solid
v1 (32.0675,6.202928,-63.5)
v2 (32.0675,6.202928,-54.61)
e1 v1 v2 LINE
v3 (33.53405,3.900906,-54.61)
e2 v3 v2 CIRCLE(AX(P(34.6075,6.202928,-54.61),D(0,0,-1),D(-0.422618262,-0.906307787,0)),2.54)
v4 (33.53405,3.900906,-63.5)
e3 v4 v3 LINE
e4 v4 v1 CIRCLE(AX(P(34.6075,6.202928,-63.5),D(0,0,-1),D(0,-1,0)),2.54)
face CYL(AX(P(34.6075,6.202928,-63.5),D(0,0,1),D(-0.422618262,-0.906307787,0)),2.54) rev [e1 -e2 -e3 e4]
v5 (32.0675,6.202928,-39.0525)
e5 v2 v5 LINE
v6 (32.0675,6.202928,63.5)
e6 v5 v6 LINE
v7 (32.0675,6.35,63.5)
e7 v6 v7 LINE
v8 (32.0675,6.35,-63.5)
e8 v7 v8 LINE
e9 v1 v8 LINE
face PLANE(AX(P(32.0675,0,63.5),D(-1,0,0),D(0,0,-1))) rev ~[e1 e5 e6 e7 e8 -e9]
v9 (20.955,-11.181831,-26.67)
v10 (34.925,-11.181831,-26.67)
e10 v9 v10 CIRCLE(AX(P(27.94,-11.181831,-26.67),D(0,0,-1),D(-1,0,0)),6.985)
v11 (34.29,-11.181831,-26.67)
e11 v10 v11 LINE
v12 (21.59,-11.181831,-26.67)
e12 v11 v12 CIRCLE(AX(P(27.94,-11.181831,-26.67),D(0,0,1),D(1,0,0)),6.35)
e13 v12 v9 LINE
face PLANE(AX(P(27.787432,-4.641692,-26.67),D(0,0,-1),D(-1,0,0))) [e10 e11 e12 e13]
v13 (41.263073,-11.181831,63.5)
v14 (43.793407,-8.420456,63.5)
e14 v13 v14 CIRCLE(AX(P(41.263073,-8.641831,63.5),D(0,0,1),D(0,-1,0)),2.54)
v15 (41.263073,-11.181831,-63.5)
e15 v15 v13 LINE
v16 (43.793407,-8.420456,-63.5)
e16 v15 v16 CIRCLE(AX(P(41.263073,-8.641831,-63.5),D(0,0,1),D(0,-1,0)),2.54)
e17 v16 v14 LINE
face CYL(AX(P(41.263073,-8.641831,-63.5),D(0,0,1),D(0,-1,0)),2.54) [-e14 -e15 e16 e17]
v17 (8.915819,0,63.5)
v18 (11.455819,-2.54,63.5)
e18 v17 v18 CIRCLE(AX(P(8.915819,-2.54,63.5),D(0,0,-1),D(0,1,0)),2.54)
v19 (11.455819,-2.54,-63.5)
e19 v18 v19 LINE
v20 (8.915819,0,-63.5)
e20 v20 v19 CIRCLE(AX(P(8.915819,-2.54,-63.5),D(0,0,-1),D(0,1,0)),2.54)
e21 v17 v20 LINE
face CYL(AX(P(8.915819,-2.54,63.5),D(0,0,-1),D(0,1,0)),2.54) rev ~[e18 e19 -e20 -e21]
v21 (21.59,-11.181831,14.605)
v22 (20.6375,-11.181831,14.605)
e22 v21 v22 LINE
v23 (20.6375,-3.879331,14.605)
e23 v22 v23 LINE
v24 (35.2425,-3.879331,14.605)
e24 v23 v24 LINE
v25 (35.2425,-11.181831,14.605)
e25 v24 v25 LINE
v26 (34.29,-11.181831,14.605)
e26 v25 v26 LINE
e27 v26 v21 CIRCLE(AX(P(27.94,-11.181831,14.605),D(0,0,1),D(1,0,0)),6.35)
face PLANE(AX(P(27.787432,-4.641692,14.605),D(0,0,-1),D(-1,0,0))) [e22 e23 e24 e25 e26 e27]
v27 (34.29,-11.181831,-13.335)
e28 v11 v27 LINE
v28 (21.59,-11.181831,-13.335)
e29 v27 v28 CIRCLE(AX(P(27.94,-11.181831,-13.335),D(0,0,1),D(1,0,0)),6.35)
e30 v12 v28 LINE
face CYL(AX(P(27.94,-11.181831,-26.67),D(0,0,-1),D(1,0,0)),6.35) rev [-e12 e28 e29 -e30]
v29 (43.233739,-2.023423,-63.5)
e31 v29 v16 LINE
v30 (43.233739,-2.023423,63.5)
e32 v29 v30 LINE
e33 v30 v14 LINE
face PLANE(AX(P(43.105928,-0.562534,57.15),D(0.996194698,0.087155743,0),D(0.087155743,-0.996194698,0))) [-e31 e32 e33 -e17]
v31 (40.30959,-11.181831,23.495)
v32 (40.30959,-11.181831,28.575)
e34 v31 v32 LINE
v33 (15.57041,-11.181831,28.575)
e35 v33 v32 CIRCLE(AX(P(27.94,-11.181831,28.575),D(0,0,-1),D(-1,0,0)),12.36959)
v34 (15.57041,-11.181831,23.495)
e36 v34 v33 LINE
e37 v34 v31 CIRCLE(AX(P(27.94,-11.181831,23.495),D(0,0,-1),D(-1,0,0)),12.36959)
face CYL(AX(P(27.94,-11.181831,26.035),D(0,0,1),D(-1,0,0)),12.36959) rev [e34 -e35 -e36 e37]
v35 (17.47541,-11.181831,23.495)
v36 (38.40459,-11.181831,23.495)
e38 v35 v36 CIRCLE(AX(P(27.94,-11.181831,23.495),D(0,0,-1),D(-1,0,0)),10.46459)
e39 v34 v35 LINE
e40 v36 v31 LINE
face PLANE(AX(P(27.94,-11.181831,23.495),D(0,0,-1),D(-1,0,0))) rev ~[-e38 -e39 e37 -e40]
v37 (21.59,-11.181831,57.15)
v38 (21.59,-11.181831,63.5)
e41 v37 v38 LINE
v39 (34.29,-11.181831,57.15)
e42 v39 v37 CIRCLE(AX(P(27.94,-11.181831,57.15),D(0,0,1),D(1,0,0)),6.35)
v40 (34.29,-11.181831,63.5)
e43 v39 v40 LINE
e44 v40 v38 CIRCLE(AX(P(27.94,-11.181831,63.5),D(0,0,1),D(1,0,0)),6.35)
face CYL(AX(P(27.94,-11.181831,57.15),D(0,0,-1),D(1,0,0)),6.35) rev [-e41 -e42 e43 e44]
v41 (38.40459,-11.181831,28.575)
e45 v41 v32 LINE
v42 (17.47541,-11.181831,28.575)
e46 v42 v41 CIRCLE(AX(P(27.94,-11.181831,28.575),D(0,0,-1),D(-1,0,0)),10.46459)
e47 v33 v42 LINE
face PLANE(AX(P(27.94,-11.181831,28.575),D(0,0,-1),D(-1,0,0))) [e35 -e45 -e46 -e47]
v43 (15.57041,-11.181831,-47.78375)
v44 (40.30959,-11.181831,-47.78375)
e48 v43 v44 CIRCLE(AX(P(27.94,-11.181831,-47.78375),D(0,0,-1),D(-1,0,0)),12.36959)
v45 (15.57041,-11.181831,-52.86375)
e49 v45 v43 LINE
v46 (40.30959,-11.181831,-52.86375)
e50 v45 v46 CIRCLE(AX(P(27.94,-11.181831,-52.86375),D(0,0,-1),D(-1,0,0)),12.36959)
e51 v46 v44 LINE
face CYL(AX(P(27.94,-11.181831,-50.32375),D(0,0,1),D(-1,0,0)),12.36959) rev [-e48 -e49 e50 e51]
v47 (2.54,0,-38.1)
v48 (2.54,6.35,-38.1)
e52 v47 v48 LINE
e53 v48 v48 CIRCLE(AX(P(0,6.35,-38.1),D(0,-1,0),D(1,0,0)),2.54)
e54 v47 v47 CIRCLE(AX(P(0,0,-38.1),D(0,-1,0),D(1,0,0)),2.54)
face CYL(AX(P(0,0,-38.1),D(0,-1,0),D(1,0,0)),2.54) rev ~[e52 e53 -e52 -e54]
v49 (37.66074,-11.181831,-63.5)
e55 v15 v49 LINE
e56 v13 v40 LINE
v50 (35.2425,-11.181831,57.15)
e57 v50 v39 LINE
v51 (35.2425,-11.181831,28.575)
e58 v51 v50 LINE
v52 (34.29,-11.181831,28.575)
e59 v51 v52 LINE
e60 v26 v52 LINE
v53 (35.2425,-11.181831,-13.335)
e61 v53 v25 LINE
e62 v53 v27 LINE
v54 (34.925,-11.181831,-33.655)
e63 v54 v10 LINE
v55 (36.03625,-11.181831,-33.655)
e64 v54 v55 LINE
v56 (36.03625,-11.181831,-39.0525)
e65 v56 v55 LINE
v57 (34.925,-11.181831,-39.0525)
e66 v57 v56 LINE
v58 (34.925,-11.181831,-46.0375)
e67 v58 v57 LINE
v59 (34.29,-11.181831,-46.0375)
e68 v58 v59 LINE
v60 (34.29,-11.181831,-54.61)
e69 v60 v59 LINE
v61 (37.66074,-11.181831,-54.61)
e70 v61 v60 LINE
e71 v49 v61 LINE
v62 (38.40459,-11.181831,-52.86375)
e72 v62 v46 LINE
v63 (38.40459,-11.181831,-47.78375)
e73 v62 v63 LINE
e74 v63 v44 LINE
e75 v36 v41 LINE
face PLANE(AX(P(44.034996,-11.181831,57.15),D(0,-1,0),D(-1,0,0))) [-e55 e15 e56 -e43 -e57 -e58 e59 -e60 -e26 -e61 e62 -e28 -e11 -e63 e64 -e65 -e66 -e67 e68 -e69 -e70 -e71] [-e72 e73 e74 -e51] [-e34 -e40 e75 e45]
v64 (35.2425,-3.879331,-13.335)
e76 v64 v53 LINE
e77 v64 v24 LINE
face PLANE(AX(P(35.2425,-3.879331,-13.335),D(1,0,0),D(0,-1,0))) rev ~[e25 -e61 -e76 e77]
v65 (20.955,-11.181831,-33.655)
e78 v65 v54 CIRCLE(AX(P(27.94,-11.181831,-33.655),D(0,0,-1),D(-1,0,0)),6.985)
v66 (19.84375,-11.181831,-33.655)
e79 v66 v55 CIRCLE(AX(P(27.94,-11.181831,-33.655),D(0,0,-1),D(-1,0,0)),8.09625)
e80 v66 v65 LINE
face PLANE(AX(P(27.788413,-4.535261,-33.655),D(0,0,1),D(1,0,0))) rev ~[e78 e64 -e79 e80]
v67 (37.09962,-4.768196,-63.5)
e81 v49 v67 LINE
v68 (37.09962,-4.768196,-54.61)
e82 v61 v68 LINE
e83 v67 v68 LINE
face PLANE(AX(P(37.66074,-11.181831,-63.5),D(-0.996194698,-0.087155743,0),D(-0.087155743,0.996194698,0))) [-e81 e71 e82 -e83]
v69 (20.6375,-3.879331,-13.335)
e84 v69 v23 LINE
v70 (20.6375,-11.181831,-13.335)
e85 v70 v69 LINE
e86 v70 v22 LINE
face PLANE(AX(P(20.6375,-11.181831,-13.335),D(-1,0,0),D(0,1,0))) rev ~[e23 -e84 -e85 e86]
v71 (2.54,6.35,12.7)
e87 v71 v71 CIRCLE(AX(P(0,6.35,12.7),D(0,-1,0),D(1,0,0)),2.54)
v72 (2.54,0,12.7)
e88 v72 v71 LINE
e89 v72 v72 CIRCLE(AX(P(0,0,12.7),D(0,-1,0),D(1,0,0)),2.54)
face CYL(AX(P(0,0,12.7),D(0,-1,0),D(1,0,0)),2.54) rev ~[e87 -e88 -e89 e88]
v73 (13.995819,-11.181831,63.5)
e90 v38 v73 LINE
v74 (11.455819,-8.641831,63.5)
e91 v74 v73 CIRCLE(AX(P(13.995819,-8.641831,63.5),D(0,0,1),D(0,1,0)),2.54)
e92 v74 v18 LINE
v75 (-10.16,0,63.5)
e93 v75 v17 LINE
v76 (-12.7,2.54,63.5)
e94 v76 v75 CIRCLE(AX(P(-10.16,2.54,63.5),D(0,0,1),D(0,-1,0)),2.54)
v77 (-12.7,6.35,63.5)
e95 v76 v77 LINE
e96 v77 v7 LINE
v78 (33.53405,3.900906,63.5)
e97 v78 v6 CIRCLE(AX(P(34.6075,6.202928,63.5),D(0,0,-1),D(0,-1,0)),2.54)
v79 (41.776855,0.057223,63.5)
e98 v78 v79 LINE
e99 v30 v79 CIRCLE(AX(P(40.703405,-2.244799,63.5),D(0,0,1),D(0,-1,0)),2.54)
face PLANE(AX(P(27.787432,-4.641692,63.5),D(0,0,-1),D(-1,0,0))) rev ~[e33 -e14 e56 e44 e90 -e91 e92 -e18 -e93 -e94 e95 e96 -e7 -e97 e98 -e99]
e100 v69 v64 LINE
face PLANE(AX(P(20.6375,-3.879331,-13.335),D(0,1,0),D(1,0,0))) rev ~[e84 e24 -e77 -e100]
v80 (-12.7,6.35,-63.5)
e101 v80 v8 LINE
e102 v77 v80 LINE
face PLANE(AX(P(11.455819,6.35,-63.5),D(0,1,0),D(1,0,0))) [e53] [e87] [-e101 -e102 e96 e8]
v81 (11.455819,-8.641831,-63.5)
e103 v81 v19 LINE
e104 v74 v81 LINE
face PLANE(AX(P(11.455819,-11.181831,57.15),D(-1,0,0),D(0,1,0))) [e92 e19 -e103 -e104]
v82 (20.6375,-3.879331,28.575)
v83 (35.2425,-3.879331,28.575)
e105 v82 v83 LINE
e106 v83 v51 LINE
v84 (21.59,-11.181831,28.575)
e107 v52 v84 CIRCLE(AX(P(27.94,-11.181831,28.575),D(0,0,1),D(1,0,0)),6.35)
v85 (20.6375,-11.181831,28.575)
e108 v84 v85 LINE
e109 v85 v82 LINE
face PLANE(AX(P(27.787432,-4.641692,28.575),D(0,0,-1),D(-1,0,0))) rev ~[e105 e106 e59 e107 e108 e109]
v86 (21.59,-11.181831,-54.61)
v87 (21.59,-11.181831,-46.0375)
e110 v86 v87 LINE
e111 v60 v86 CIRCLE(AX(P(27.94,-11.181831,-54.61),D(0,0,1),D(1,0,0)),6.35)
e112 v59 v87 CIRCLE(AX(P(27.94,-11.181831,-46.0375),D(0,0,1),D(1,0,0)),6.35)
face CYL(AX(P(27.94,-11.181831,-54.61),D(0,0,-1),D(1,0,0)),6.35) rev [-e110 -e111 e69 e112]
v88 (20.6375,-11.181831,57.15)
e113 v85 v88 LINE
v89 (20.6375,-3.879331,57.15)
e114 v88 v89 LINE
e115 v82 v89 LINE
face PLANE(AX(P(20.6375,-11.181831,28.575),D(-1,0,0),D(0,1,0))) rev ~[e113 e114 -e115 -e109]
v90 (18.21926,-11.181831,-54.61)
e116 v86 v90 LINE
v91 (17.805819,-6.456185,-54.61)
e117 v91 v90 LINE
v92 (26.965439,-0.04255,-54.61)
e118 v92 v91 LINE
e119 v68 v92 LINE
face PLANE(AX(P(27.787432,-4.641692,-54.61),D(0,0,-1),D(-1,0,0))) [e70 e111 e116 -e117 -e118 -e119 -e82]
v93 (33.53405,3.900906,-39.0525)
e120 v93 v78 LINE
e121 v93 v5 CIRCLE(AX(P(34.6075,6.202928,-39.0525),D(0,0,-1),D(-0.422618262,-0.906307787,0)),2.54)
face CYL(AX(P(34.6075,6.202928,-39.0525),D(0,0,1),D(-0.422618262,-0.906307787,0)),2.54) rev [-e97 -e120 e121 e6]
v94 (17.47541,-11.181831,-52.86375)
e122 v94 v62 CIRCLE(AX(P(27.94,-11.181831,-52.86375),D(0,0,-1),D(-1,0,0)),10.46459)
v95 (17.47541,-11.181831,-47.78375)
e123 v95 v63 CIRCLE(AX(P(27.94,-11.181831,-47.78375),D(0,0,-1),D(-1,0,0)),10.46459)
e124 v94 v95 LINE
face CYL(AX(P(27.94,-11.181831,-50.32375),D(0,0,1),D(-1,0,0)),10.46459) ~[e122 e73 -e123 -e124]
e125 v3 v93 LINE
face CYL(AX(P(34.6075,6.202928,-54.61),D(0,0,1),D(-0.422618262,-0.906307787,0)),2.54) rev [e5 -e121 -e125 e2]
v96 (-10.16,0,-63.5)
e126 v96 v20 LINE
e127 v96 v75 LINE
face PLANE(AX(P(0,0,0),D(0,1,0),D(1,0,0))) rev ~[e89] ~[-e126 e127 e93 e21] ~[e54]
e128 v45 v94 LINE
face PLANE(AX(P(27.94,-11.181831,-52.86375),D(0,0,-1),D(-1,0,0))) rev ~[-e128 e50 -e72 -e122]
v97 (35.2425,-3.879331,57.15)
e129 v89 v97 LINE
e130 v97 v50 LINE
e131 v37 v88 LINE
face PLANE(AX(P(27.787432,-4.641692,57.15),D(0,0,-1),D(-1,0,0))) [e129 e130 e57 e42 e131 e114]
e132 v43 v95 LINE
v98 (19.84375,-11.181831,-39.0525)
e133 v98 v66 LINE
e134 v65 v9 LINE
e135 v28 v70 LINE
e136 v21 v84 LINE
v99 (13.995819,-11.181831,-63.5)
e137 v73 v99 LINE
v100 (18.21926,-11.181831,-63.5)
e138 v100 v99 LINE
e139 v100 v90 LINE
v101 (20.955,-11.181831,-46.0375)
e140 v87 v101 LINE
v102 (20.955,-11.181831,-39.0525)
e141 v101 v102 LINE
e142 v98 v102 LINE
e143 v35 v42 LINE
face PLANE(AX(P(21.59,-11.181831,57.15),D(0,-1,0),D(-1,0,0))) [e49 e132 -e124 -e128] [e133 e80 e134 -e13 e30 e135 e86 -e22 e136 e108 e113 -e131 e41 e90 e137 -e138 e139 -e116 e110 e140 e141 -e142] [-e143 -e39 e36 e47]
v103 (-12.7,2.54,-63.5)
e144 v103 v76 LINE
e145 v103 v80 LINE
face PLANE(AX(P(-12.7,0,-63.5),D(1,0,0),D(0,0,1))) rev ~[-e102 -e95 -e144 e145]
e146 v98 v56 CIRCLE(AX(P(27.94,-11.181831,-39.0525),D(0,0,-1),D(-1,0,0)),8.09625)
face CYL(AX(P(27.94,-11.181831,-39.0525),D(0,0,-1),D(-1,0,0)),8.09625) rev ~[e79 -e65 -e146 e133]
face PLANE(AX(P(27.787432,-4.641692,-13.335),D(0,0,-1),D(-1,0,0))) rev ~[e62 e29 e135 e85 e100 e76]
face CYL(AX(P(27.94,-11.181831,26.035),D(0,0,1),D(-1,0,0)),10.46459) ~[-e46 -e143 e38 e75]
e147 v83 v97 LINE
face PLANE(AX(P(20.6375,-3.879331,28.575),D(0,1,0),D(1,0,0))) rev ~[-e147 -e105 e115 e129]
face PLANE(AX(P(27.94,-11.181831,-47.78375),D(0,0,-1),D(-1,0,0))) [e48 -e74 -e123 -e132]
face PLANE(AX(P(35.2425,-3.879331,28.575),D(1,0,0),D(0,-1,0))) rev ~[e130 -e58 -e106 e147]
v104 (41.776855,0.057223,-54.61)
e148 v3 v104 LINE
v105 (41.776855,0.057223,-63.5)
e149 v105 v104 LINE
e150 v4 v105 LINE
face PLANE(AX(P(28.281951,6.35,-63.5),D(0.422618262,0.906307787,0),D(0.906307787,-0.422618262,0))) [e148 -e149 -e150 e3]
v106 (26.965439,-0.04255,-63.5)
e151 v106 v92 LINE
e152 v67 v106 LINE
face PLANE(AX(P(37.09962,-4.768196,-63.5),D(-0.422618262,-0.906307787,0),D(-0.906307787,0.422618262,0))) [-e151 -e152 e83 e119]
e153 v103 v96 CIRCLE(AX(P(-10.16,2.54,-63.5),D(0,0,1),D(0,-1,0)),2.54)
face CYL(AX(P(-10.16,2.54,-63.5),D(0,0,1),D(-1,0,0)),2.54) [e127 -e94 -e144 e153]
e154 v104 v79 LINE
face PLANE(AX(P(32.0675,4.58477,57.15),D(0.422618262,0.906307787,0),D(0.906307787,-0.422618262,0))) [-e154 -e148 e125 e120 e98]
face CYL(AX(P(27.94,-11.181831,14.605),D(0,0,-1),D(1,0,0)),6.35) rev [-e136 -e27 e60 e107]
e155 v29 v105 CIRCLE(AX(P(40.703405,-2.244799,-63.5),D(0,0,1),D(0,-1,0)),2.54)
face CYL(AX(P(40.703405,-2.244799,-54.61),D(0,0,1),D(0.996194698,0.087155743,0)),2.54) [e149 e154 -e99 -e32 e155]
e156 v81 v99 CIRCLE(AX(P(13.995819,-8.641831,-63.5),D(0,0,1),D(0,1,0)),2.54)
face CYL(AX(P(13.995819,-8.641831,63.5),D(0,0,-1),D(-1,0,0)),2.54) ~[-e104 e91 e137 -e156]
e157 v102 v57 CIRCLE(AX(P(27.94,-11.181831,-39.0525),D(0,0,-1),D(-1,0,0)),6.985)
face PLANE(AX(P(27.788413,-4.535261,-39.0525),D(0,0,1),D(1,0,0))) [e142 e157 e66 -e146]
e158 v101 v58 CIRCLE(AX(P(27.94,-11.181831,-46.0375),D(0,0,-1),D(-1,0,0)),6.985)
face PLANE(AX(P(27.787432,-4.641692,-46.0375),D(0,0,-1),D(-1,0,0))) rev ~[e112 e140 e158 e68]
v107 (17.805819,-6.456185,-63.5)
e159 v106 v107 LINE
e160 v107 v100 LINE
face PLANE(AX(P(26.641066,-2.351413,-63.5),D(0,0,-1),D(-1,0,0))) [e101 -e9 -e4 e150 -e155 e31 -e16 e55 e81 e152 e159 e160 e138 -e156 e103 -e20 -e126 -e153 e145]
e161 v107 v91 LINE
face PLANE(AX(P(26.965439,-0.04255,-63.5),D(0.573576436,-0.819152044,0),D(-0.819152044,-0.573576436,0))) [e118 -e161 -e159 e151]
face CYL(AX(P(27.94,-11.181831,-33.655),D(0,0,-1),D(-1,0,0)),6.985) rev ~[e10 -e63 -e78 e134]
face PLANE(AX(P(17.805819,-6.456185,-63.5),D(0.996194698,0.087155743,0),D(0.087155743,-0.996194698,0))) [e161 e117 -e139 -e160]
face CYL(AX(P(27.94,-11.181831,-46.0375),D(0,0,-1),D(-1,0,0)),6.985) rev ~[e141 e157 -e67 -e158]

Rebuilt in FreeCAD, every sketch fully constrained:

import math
import FreeCAD as App
import Part
import Sketcher
from FreeCAD import Vector
Q = App.Units.Quantity


def edges_at(feature, points):
    """Names of the edges that pass closest to the given points."""
    edges = feature.Shape.Edges
    near = lambda p: min(range(len(edges)), key=lambda i: edges[i].distToShape(Part.Vertex(*p))[0])
    return sorted({f"Edge{near(p) + 1}" for p in points})


def add_polygon(sketch, points):
    """Adds a closed chain of lines whose ends are joined by coincident constraints."""
    first, n = sketch.GeometryCount, len(points)
    for a, b in zip(points, points[1:] + points[:1]):
        sketch.addGeometry(Part.LineSegment(App.Vector(*a, 0), App.Vector(*b, 0)), False)
    for i in range(n):
        sketch.addConstraint(Sketcher.Constraint("Coincident", first + i, 2, first + (i + 1) % n, 1))

doc = App.newDocument("Part")
body = doc.addObject("PartDesign::Body", "Body")

sketch1 = body.newObject("Sketcher::SketchObject", "Sketch")
sketch1.AttachmentSupport = (doc.getObject("XZ_Plane"), [""])
sketch1.MapMode = "FlatFace"
add_polygon(sketch1, [(-32, -64), (-32, 64), (32, 64), (32, -64)])
sketch1.addConstraint(Sketcher.Constraint("Vertical", 0))
sketch1.addConstraint(Sketcher.Constraint("Horizontal", 1))
sketch1.addConstraint(Sketcher.Constraint("Vertical", 2))
sketch1.addConstraint(Sketcher.Constraint("Horizontal", 3))
sketch1.addConstraint(Sketcher.Constraint("Symmetric", 0, 2, 2, 2, -1, 1))
sketch1.addConstraint(Sketcher.Constraint("DistanceY", 0, 1, 0, 2, Q("5 in")))
sketch1.addConstraint(Sketcher.Constraint("DistanceX", 1, 1, 1, 2, Q("2.525 in")))
pad1 = body.newObject("PartDesign::Pad", "Pad")
pad1.Profile = sketch1
pad1.Length = Q("0.25 in")
pad1.Reversed = True

sketch2 = body.newObject("Sketcher::SketchObject", "Sketch001")
sketch2.AttachmentSupport = (doc.getObject("XY_Plane"), [""])
sketch2.MapMode = "FlatFace"
sketch2.AttachmentOffset = App.Placement(Vector(0, 0, -2.5 * 25.4), App.Rotation())
add_polygon(sketch2, [(37.7, -11.2), (37.1, -4.8), (27, 0), (17.8, -6.5), (18.2, -11.2), (11.5, -11.2), (11.5, 6.3), (28.3, 6.3), (43.1, -0.6), (44, -11.2)])
sketch2.addConstraint(Sketcher.Constraint("Horizontal", 4))
sketch2.addConstraint(Sketcher.Constraint("Vertical", 5))
sketch2.addConstraint(Sketcher.Constraint("Horizontal", 6))
sketch2.addConstraint(Sketcher.Constraint("Horizontal", 9))
sketch2.addConstraint(Sketcher.Constraint("Parallel", 0, 3))
sketch2.addConstraint(Sketcher.Constraint("Parallel", 1, 7))
sketch2.addConstraint(Sketcher.Constraint("Parallel", 3, 8))
sketch2.addConstraint(Sketcher.Constraint("Horizontal", 4, 2, 8, 2))
sketch2.addConstraint(Sketcher.Constraint("Equal", 1, 2))
sketch2.addConstraint(Sketcher.Constraint("Angle", 0, Q("95 deg")))
sketch2.addConstraint(Sketcher.Constraint("Angle", 1, Q("155 deg")))
sketch2.addConstraint(Sketcher.Constraint("Angle", 2, Q("-145 deg")))
sketch2.addConstraint(Sketcher.Constraint("DistanceY", -1, 1, 5, 2, Q("0.25 in")))
sketch2.addConstraint(Sketcher.Constraint("DistanceX", 4, 2, 2, 2, Q("0.25 in")))
sketch2.addConstraint(Sketcher.Constraint("DistanceX", 4, 2, 4, 1, 6.76344))
sketch2.addConstraint(Sketcher.Constraint("DistanceX", 6, 1, 6, 2, 16.826132))
sketch2.addConstraint(Sketcher.Constraint("DistanceY", 5, 1, 5, 2, 17.531831))
sketch2.addConstraint(Sketcher.Constraint("DistanceX", 2, 2, 0, 2, 19.293801))
sketch2.addConstraint(Sketcher.Constraint("Distance", 7, 16.356449))
sketch2.addConstraint(Sketcher.Constraint("DistanceX", -1, 1, 0, 2, 37.09962))
pad2 = body.newObject("PartDesign::Pad", "Pad001")
pad2.Profile = sketch2
pad2.Length = Q("0.35 in")

sketch3 = body.newObject("Sketcher::SketchObject", "Sketch002")
sketch3.AttachmentSupport = (doc.getObject("XY_Plane"), [""])
sketch3.MapMode = "FlatFace"
sketch3.AttachmentOffset = App.Placement(Vector(0, 0, -2.15 * 25.4), App.Rotation())
sketch3.addGeometry(Part.LineSegment(Vector(34.3, -11.2, 0), Vector(44, -11.2, 0)), False)
sketch3.addGeometry(Part.LineSegment(Vector(44, -11.2, 0), Vector(43.1, -0.6, 0)), False)
sketch3.addGeometry(Part.LineSegment(Vector(43.1, -0.6, 0), Vector(32.1, 4.6, 0)), False)
sketch3.addGeometry(Part.LineSegment(Vector(32.1, 4.6, 0), Vector(32.1, 0, 0)), False)
sketch3.addGeometry(Part.LineSegment(Vector(32.1, 0, 0), Vector(11.5, 0, 0)), False)
sketch3.addGeometry(Part.LineSegment(Vector(11.5, 0, 0), Vector(11.5, -11.2, 0)), False)
sketch3.addGeometry(Part.LineSegment(Vector(11.5, -11.2, 0), Vector(21.6, -11.2, 0)), False)
sketch3.addGeometry(Part.ArcOfCircle(Part.Circle(Vector(27.9, -11.2, 0), Vector(0, 0, 1), 6.3), math.radians(0), math.radians(180)), False)
sketch3.addConstraint(Sketcher.Constraint("Coincident", 0, 2, 1, 1))
sketch3.addConstraint(Sketcher.Constraint("Coincident", 1, 2, 2, 1))
sketch3.addConstraint(Sketcher.Constraint("Coincident", 2, 2, 3, 1))
sketch3.addConstraint(Sketcher.Constraint("Coincident", 3, 2, 4, 1))
sketch3.addConstraint(Sketcher.Constraint("Coincident", 4, 2, 5, 1))
sketch3.addConstraint(Sketcher.Constraint("Coincident", 5, 2, 6, 1))
sketch3.addConstraint(Sketcher.Constraint("Coincident", 6, 2, 7, 2))
sketch3.addConstraint(Sketcher.Constraint("Coincident", 7, 1, 0, 1))
sketch3.addConstraint(Sketcher.Constraint("Horizontal", 0))
sketch3.addConstraint(Sketcher.Constraint("Vertical", 3))
sketch3.addConstraint(Sketcher.Constraint("Horizontal", 4))
sketch3.addConstraint(Sketcher.Constraint("Vertical", 5))
sketch3.addConstraint(Sketcher.Constraint("Horizontal", 6))
sketch3.addConstraint(Sketcher.Constraint("PointOnObject", 3, 2, -1))
sketch3.addConstraint(Sketcher.Constraint("Horizontal", 7, 3, 0, 2))
sketch3.addConstraint(Sketcher.Constraint("Horizontal", 0, 2, 5, 2))
sketch3.addConstraint(Sketcher.Constraint("Radius", 7, Q("0.25 in")))
sketch3.addConstraint(Sketcher.Constraint("Angle", 1, Q("95 deg")))
sketch3.addConstraint(Sketcher.Constraint("Angle", 2, Q("155 deg")))
sketch3.addConstraint(Sketcher.Constraint("DistanceX", -1, 1, 7, 3, Q("1.1 in")))
sketch3.addConstraint(Sketcher.Constraint("DistanceX", -1, 1, 2, 2, Q("1.2625 in")))
sketch3.addConstraint(Sketcher.Constraint("DistanceX", 4, 2, 4, 1, 20.611681))
sketch3.addConstraint(Sketcher.Constraint("DistanceY", 3, 2, 3, 1, 4.58477))
sketch3.addConstraint(Sketcher.Constraint("DistanceY", 5, 2, 5, 1, 11.181831))
sketch3.addConstraint(Sketcher.Constraint("Distance", 1, 10.659861))
pad3 = body.newObject("PartDesign::Pad", "Pad002")
pad3.Profile = sketch3
pad3.Length = Q("0.3375 in")

sketch4 = body.newObject("Sketcher::SketchObject", "Sketch003")
sketch4.AttachmentSupport = (doc.getObject("XY_Plane"), [""])
sketch4.MapMode = "FlatFace"
sketch4.AttachmentOffset = App.Placement(Vector(0, 0, -1.8125 * 25.4), App.Rotation())
sketch4.addGeometry(Part.LineSegment(Vector(34.9, -11.2, 0), Vector(44, -11.2, 0)), False)
sketch4.addGeometry(Part.LineSegment(Vector(44, -11.2, 0), Vector(43.1, -0.6, 0)), False)
sketch4.addGeometry(Part.LineSegment(Vector(43.1, -0.6, 0), Vector(32.1, 4.6, 0)), False)
sketch4.addGeometry(Part.LineSegment(Vector(32.1, 4.6, 0), Vector(32.1, 0, 0)), False)
sketch4.addGeometry(Part.LineSegment(Vector(32.1, 0, 0), Vector(11.5, 0, 0)), False)
sketch4.addGeometry(Part.LineSegment(Vector(11.5, 0, 0), Vector(11.5, -11.2, 0)), False)
sketch4.addGeometry(Part.LineSegment(Vector(11.5, -11.2, 0), Vector(21, -11.2, 0)), False)
sketch4.addGeometry(Part.ArcOfCircle(Part.Circle(Vector(27.9, -11.2, 0), Vector(0, 0, 1), 7), math.radians(0), math.radians(180)), False)
sketch4.addConstraint(Sketcher.Constraint("Coincident", 0, 2, 1, 1))
sketch4.addConstraint(Sketcher.Constraint("Coincident", 1, 2, 2, 1))
sketch4.addConstraint(Sketcher.Constraint("Coincident", 2, 2, 3, 1))
sketch4.addConstraint(Sketcher.Constraint("Coincident", 3, 2, 4, 1))
sketch4.addConstraint(Sketcher.Constraint("Coincident", 4, 2, 5, 1))
sketch4.addConstraint(Sketcher.Constraint("Coincident", 5, 2, 6, 1))
sketch4.addConstraint(Sketcher.Constraint("Coincident", 6, 2, 7, 2))
sketch4.addConstraint(Sketcher.Constraint("Coincident", 7, 1, 0, 1))
sketch4.addConstraint(Sketcher.Constraint("Horizontal", 0))
sketch4.addConstraint(Sketcher.Constraint("Vertical", 3))
sketch4.addConstraint(Sketcher.Constraint("Horizontal", 4))
sketch4.addConstraint(Sketcher.Constraint("Vertical", 5))
sketch4.addConstraint(Sketcher.Constraint("Horizontal", 6))
sketch4.addConstraint(Sketcher.Constraint("PointOnObject", 3, 2, -1))
sketch4.addConstraint(Sketcher.Constraint("Horizontal", 7, 3, 0, 2))
sketch4.addConstraint(Sketcher.Constraint("Horizontal", 0, 2, 5, 2))
sketch4.addConstraint(Sketcher.Constraint("Angle", 1, Q("95 deg")))
sketch4.addConstraint(Sketcher.Constraint("Angle", 2, Q("155 deg")))
sketch4.addConstraint(Sketcher.Constraint("Radius", 7, Q("0.275 in")))
sketch4.addConstraint(Sketcher.Constraint("DistanceX", -1, 1, 7, 3, Q("1.1 in")))
sketch4.addConstraint(Sketcher.Constraint("DistanceX", 6, 2, 3, 2, Q("0.4375 in")))
sketch4.addConstraint(Sketcher.Constraint("DistanceX", 4, 2, 4, 1, 20.611681))
sketch4.addConstraint(Sketcher.Constraint("DistanceY", 3, 2, 3, 1, 4.58477))
sketch4.addConstraint(Sketcher.Constraint("DistanceY", 5, 2, 5, 1, 11.181831))
sketch4.addConstraint(Sketcher.Constraint("Distance", 1, 10.659861))
pad4 = body.newObject("PartDesign::Pad", "Pad003")
pad4.Profile = sketch4
pad4.Length = Q("0.275 in")

sketch5 = body.newObject("Sketcher::SketchObject", "Sketch004")
sketch5.AttachmentSupport = (doc.getObject("XY_Plane"), [""])
sketch5.MapMode = "FlatFace"
sketch5.AttachmentOffset = App.Placement(Vector(0, 0, -1.5375 * 25.4), App.Rotation())
sketch5.addGeometry(Part.LineSegment(Vector(36, -11.2, 0), Vector(44, -11.2, 0)), False)
sketch5.addGeometry(Part.LineSegment(Vector(44, -11.2, 0), Vector(43.1, -0.6, 0)), False)
sketch5.addGeometry(Part.LineSegment(Vector(43.1, -0.6, 0), Vector(32.1, 4.6, 0)), False)
sketch5.addGeometry(Part.LineSegment(Vector(32.1, 4.6, 0), Vector(32.1, 0, 0)), False)
sketch5.addGeometry(Part.LineSegment(Vector(32.1, 0, 0), Vector(11.5, 0, 0)), False)
sketch5.addGeometry(Part.LineSegment(Vector(11.5, 0, 0), Vector(11.5, -11.2, 0)), False)
sketch5.addGeometry(Part.LineSegment(Vector(11.5, -11.2, 0), Vector(19.8, -11.2, 0)), False)
sketch5.addGeometry(Part.ArcOfCircle(Part.Circle(Vector(27.9, -11.2, 0), Vector(0, 0, 1), 8.1), math.radians(0), math.radians(180)), False)
sketch5.addConstraint(Sketcher.Constraint("Coincident", 0, 2, 1, 1))
sketch5.addConstraint(Sketcher.Constraint("Coincident", 1, 2, 2, 1))
sketch5.addConstraint(Sketcher.Constraint("Coincident", 2, 2, 3, 1))
sketch5.addConstraint(Sketcher.Constraint("Coincident", 3, 2, 4, 1))
sketch5.addConstraint(Sketcher.Constraint("Coincident", 4, 2, 5, 1))
sketch5.addConstraint(Sketcher.Constraint("Coincident", 5, 2, 6, 1))
sketch5.addConstraint(Sketcher.Constraint("Coincident", 6, 2, 7, 2))
sketch5.addConstraint(Sketcher.Constraint("Coincident", 7, 1, 0, 1))
sketch5.addConstraint(Sketcher.Constraint("Horizontal", 0))
sketch5.addConstraint(Sketcher.Constraint("Vertical", 3))
sketch5.addConstraint(Sketcher.Constraint("Horizontal", 4))
sketch5.addConstraint(Sketcher.Constraint("Vertical", 5))
sketch5.addConstraint(Sketcher.Constraint("Horizontal", 6))
sketch5.addConstraint(Sketcher.Constraint("PointOnObject", 3, 2, -1))
sketch5.addConstraint(Sketcher.Constraint("Horizontal", 7, 3, 0, 2))
sketch5.addConstraint(Sketcher.Constraint("Horizontal", 0, 2, 5, 2))
sketch5.addConstraint(Sketcher.Constraint("Angle", 1, Q("95 deg")))
sketch5.addConstraint(Sketcher.Constraint("Angle", 2, Q("155 deg")))
sketch5.addConstraint(Sketcher.Constraint("DistanceX", -1, 1, 7, 3, Q("1.1 in")))
sketch5.addConstraint(Sketcher.Constraint("DistanceX", -1, 1, 6, 2, Q("0.78125 in")))
sketch5.addConstraint(Sketcher.Constraint("DistanceX", 3, 2, 7, 1, Q("0.15625 in")))
sketch5.addConstraint(Sketcher.Constraint("DistanceX", 4, 2, 4, 1, 20.611681))
sketch5.addConstraint(Sketcher.Constraint("DistanceY", 3, 2, 3, 1, 4.58477))
sketch5.addConstraint(Sketcher.Constraint("DistanceY", 5, 2, 5, 1, 11.181831))
sketch5.addConstraint(Sketcher.Constraint("Distance", 1, 10.659861))
pad5 = body.newObject("PartDesign::Pad", "Pad004")
pad5.Profile = sketch5
pad5.Length = Q("0.2125 in")

sketch6 = body.newObject("Sketcher::SketchObject", "Sketch005")
sketch6.AttachmentSupport = (doc.getObject("XY_Plane"), [""])
sketch6.MapMode = "FlatFace"
sketch6.AttachmentOffset = App.Placement(Vector(0, 0, -1.325 * 25.4), App.Rotation())
sketch6.addGeometry(Part.LineSegment(Vector(34.9, -11.2, 0), Vector(44, -11.2, 0)), False)
sketch6.addGeometry(Part.LineSegment(Vector(44, -11.2, 0), Vector(43.1, -0.6, 0)), False)
sketch6.addGeometry(Part.LineSegment(Vector(43.1, -0.6, 0), Vector(32.1, 4.6, 0)), False)
sketch6.addGeometry(Part.LineSegment(Vector(32.1, 4.6, 0), Vector(32.1, 0, 0)), False)
sketch6.addGeometry(Part.LineSegment(Vector(32.1, 0, 0), Vector(11.5, 0, 0)), False)
sketch6.addGeometry(Part.LineSegment(Vector(11.5, 0, 0), Vector(11.5, -11.2, 0)), False)
sketch6.addGeometry(Part.LineSegment(Vector(11.5, -11.2, 0), Vector(21, -11.2, 0)), False)
sketch6.addGeometry(Part.ArcOfCircle(Part.Circle(Vector(27.9, -11.2, 0), Vector(0, 0, 1), 7), math.radians(0), math.radians(180)), False)
sketch6.addConstraint(Sketcher.Constraint("Coincident", 0, 2, 1, 1))
sketch6.addConstraint(Sketcher.Constraint("Coincident", 1, 2, 2, 1))
sketch6.addConstraint(Sketcher.Constraint("Coincident", 2, 2, 3, 1))
sketch6.addConstraint(Sketcher.Constraint("Coincident", 3, 2, 4, 1))
sketch6.addConstraint(Sketcher.Constraint("Coincident", 4, 2, 5, 1))
sketch6.addConstraint(Sketcher.Constraint("Coincident", 5, 2, 6, 1))
sketch6.addConstraint(Sketcher.Constraint("Coincident", 6, 2, 7, 2))
sketch6.addConstraint(Sketcher.Constraint("Coincident", 7, 1, 0, 1))
sketch6.addConstraint(Sketcher.Constraint("Horizontal", 0))
sketch6.addConstraint(Sketcher.Constraint("Vertical", 3))
sketch6.addConstraint(Sketcher.Constraint("Horizontal", 4))
sketch6.addConstraint(Sketcher.Constraint("Vertical", 5))
sketch6.addConstraint(Sketcher.Constraint("Horizontal", 6))
sketch6.addConstraint(Sketcher.Constraint("PointOnObject", 3, 2, -1))
sketch6.addConstraint(Sketcher.Constraint("Horizontal", 7, 3, 0, 2))
sketch6.addConstraint(Sketcher.Constraint("Horizontal", 0, 2, 5, 2))
sketch6.addConstraint(Sketcher.Constraint("Angle", 1, Q("95 deg")))
sketch6.addConstraint(Sketcher.Constraint("Angle", 2, Q("155 deg")))
sketch6.addConstraint(Sketcher.Constraint("Radius", 7, Q("0.275 in")))
sketch6.addConstraint(Sketcher.Constraint("DistanceX", -1, 1, 7, 3, Q("1.1 in")))
sketch6.addConstraint(Sketcher.Constraint("DistanceX", 6, 2, 3, 2, Q("0.4375 in")))
sketch6.addConstraint(Sketcher.Constraint("DistanceX", 4, 2, 4, 1, 20.611681))
sketch6.addConstraint(Sketcher.Constraint("DistanceY", 3, 2, 3, 1, 4.58477))
sketch6.addConstraint(Sketcher.Constraint("DistanceY", 5, 2, 5, 1, 11.181831))
sketch6.addConstraint(Sketcher.Constraint("Distance", 1, 10.659861))
pad6 = body.newObject("PartDesign::Pad", "Pad005")
pad6.Profile = sketch6
pad6.Length = Q("0.275 in")

sketch7 = body.newObject("Sketcher::SketchObject", "Sketch006")
sketch7.AttachmentSupport = (doc.getObject("XY_Plane"), [""])
sketch7.MapMode = "FlatFace"
sketch7.AttachmentOffset = App.Placement(Vector(0, 0, -1.05 * 25.4), App.Rotation())
sketch7.addGeometry(Part.LineSegment(Vector(34.3, -11.2, 0), Vector(44, -11.2, 0)), False)
sketch7.addGeometry(Part.LineSegment(Vector(44, -11.2, 0), Vector(43.1, -0.6, 0)), False)
sketch7.addGeometry(Part.LineSegment(Vector(43.1, -0.6, 0), Vector(32.1, 4.6, 0)), False)
sketch7.addGeometry(Part.LineSegment(Vector(32.1, 4.6, 0), Vector(32.1, 0, 0)), False)
sketch7.addGeometry(Part.LineSegment(Vector(32.1, 0, 0), Vector(11.5, 0, 0)), False)
sketch7.addGeometry(Part.LineSegment(Vector(11.5, 0, 0), Vector(11.5, -11.2, 0)), False)
sketch7.addGeometry(Part.LineSegment(Vector(11.5, -11.2, 0), Vector(21.6, -11.2, 0)), False)
sketch7.addGeometry(Part.ArcOfCircle(Part.Circle(Vector(27.9, -11.2, 0), Vector(0, 0, 1), 6.3), math.radians(0), math.radians(180)), False)
sketch7.addConstraint(Sketcher.Constraint("Coincident", 0, 2, 1, 1))
sketch7.addConstraint(Sketcher.Constraint("Coincident", 1, 2, 2, 1))
sketch7.addConstraint(Sketcher.Constraint("Coincident", 2, 2, 3, 1))
sketch7.addConstraint(Sketcher.Constraint("Coincident", 3, 2, 4, 1))
sketch7.addConstraint(Sketcher.Constraint("Coincident", 4, 2, 5, 1))
sketch7.addConstraint(Sketcher.Constraint("Coincident", 5, 2, 6, 1))
sketch7.addConstraint(Sketcher.Constraint("Coincident", 6, 2, 7, 2))
sketch7.addConstraint(Sketcher.Constraint("Coincident", 7, 1, 0, 1))
sketch7.addConstraint(Sketcher.Constraint("Horizontal", 0))
sketch7.addConstraint(Sketcher.Constraint("Vertical", 3))
sketch7.addConstraint(Sketcher.Constraint("Horizontal", 4))
sketch7.addConstraint(Sketcher.Constraint("Vertical", 5))
sketch7.addConstraint(Sketcher.Constraint("Horizontal", 6))
sketch7.addConstraint(Sketcher.Constraint("PointOnObject", 3, 2, -1))
sketch7.addConstraint(Sketcher.Constraint("Horizontal", 7, 3, 0, 2))
sketch7.addConstraint(Sketcher.Constraint("Horizontal", 0, 2, 5, 2))
sketch7.addConstraint(Sketcher.Constraint("Radius", 7, Q("0.25 in")))
sketch7.addConstraint(Sketcher.Constraint("Angle", 1, Q("95 deg")))
sketch7.addConstraint(Sketcher.Constraint("Angle", 2, Q("155 deg")))
sketch7.addConstraint(Sketcher.Constraint("DistanceX", -1, 1, 7, 3, Q("1.1 in")))
sketch7.addConstraint(Sketcher.Constraint("DistanceX", -1, 1, 2, 2, Q("1.2625 in")))
sketch7.addConstraint(Sketcher.Constraint("DistanceX", 4, 2, 4, 1, 20.611681))
sketch7.addConstraint(Sketcher.Constraint("DistanceY", 3, 2, 3, 1, 4.58477))
sketch7.addConstraint(Sketcher.Constraint("DistanceY", 5, 2, 5, 1, 11.181831))
sketch7.addConstraint(Sketcher.Constraint("Distance", 1, 10.659861))
pad7 = body.newObject("PartDesign::Pad", "Pad006")
pad7.Profile = sketch7
pad7.Length = Q("0.525 in")

sketch8 = body.newObject("Sketcher::SketchObject", "Sketch007")
sketch8.AttachmentSupport = (doc.getObject("XY_Plane"), [""])
sketch8.MapMode = "FlatFace"
sketch8.AttachmentOffset = App.Placement(Vector(0, 0, -0.525 * 25.4), App.Rotation())
add_polygon(sketch8, [(20.6, -11.2), (20.6, -3.9), (35.2, -3.9), (35.2, -11.2), (44, -11.2), (43.1, -0.6), (32.1, 4.6), (32.1, 0), (11.5, 0), (11.5, -11.2)])
sketch8.addConstraint(Sketcher.Constraint("Vertical", 0))
sketch8.addConstraint(Sketcher.Constraint("Horizontal", 1))
sketch8.addConstraint(Sketcher.Constraint("Vertical", 2))
sketch8.addConstraint(Sketcher.Constraint("Horizontal", 3))
sketch8.addConstraint(Sketcher.Constraint("Vertical", 6))
sketch8.addConstraint(Sketcher.Constraint("Horizontal", 7))
sketch8.addConstraint(Sketcher.Constraint("Vertical", 8))
sketch8.addConstraint(Sketcher.Constraint("Horizontal", 9))
sketch8.addConstraint(Sketcher.Constraint("PointOnObject", 6, 2, -1))
sketch8.addConstraint(Sketcher.Constraint("Horizontal", 3, 2, 8, 2))
sketch8.addConstraint(Sketcher.Constraint("Angle", 4, Q("95 deg")))
sketch8.addConstraint(Sketcher.Constraint("Angle", 5, Q("155 deg")))
sketch8.addConstraint(Sketcher.Constraint("DistanceX", 1, 1, 1, 2, Q("0.575 in")))
sketch8.addConstraint(Sketcher.Constraint("DistanceX", 0, 2, 5, 2, Q("0.45 in")))
sketch8.addConstraint(Sketcher.Constraint("DistanceY", 0, 1, 0, 2, Q("0.2875 in")))
sketch8.addConstraint(Sketcher.Constraint("DistanceX", -1, 1, 0, 2, Q("0.8125 in")))
sketch8.addConstraint(Sketcher.Constraint("DistanceX", 7, 2, 7, 1, 20.611681))
sketch8.addConstraint(Sketcher.Constraint("DistanceY", 6, 2, 6, 1, 4.58477))
sketch8.addConstraint(Sketcher.Constraint("DistanceY", 8, 2, 8, 1, 11.181831))
sketch8.addConstraint(Sketcher.Constraint("Distance", 4, 10.659861))
pad8 = body.newObject("PartDesign::Pad", "Pad007")
pad8.Profile = sketch8
pad8.Length = Q("1.1 in")

sketch9 = body.newObject("Sketcher::SketchObject", "Sketch008")
sketch9.AttachmentSupport = (doc.getObject("XY_Plane"), [""])
sketch9.MapMode = "FlatFace"
sketch9.AttachmentOffset = App.Placement(Vector(0, 0, 0.575 * 25.4), App.Rotation())
sketch9.addGeometry(Part.LineSegment(Vector(34.3, -11.2, 0), Vector(44, -11.2, 0)), False)
sketch9.addGeometry(Part.LineSegment(Vector(44, -11.2, 0), Vector(43.1, -0.6, 0)), False)
sketch9.addGeometry(Part.LineSegment(Vector(43.1, -0.6, 0), Vector(32.1, 4.6, 0)), False)
sketch9.addGeometry(Part.LineSegment(Vector(32.1, 4.6, 0), Vector(32.1, 0, 0)), False)
sketch9.addGeometry(Part.LineSegment(Vector(32.1, 0, 0), Vector(11.5, 0, 0)), False)
sketch9.addGeometry(Part.LineSegment(Vector(11.5, 0, 0), Vector(11.5, -11.2, 0)), False)
sketch9.addGeometry(Part.LineSegment(Vector(11.5, -11.2, 0), Vector(21.6, -11.2, 0)), False)
sketch9.addGeometry(Part.ArcOfCircle(Part.Circle(Vector(27.9, -11.2, 0), Vector(0, 0, 1), 6.3), math.radians(0), math.radians(180)), False)
sketch9.addConstraint(Sketcher.Constraint("Coincident", 0, 2, 1, 1))
sketch9.addConstraint(Sketcher.Constraint("Coincident", 1, 2, 2, 1))
sketch9.addConstraint(Sketcher.Constraint("Coincident", 2, 2, 3, 1))
sketch9.addConstraint(Sketcher.Constraint("Coincident", 3, 2, 4, 1))
sketch9.addConstraint(Sketcher.Constraint("Coincident", 4, 2, 5, 1))
sketch9.addConstraint(Sketcher.Constraint("Coincident", 5, 2, 6, 1))
sketch9.addConstraint(Sketcher.Constraint("Coincident", 6, 2, 7, 2))
sketch9.addConstraint(Sketcher.Constraint("Coincident", 7, 1, 0, 1))
sketch9.addConstraint(Sketcher.Constraint("Horizontal", 0))
sketch9.addConstraint(Sketcher.Constraint("Vertical", 3))
sketch9.addConstraint(Sketcher.Constraint("Horizontal", 4))
sketch9.addConstraint(Sketcher.Constraint("Vertical", 5))
sketch9.addConstraint(Sketcher.Constraint("Horizontal", 6))
sketch9.addConstraint(Sketcher.Constraint("PointOnObject", 3, 2, -1))
sketch9.addConstraint(Sketcher.Constraint("Horizontal", 7, 3, 0, 2))
sketch9.addConstraint(Sketcher.Constraint("Horizontal", 0, 2, 5, 2))
sketch9.addConstraint(Sketcher.Constraint("Radius", 7, Q("0.25 in")))
sketch9.addConstraint(Sketcher.Constraint("Angle", 1, Q("95 deg")))
sketch9.addConstraint(Sketcher.Constraint("Angle", 2, Q("155 deg")))
sketch9.addConstraint(Sketcher.Constraint("DistanceX", -1, 1, 7, 3, Q("1.1 in")))
sketch9.addConstraint(Sketcher.Constraint("DistanceX", -1, 1, 2, 2, Q("1.2625 in")))
sketch9.addConstraint(Sketcher.Constraint("DistanceX", 4, 2, 4, 1, 20.611681))
sketch9.addConstraint(Sketcher.Constraint("DistanceY", 3, 2, 3, 1, 4.58477))
sketch9.addConstraint(Sketcher.Constraint("DistanceY", 5, 2, 5, 1, 11.181831))
sketch9.addConstraint(Sketcher.Constraint("Distance", 1, 10.659861))
pad9 = body.newObject("PartDesign::Pad", "Pad008")
pad9.Profile = sketch9
pad9.Length = Q("0.55 in")

sketch10 = body.newObject("Sketcher::SketchObject", "Sketch009")
sketch10.AttachmentSupport = (doc.getObject("XY_Plane"), [""])
sketch10.MapMode = "FlatFace"
sketch10.AttachmentOffset = App.Placement(Vector(0, 0, 1.125 * 25.4), App.Rotation())
add_polygon(sketch10, [(20.6, -11.2), (20.6, -3.9), (35.2, -3.9), (35.2, -11.2), (44, -11.2), (43.1, -0.6), (32.1, 4.6), (32.1, 0), (11.5, 0), (11.5, -11.2)])
sketch10.addConstraint(Sketcher.Constraint("Vertical", 0))
sketch10.addConstraint(Sketcher.Constraint("Horizontal", 1))
sketch10.addConstraint(Sketcher.Constraint("Vertical", 2))
sketch10.addConstraint(Sketcher.Constraint("Horizontal", 3))
sketch10.addConstraint(Sketcher.Constraint("Vertical", 6))
sketch10.addConstraint(Sketcher.Constraint("Horizontal", 7))
sketch10.addConstraint(Sketcher.Constraint("Vertical", 8))
sketch10.addConstraint(Sketcher.Constraint("Horizontal", 9))
sketch10.addConstraint(Sketcher.Constraint("PointOnObject", 6, 2, -1))
sketch10.addConstraint(Sketcher.Constraint("Horizontal", 3, 2, 8, 2))
sketch10.addConstraint(Sketcher.Constraint("Angle", 4, Q("95 deg")))
sketch10.addConstraint(Sketcher.Constraint("Angle", 5, Q("155 deg")))
sketch10.addConstraint(Sketcher.Constraint("DistanceX", 1, 1, 1, 2, Q("0.575 in")))
sketch10.addConstraint(Sketcher.Constraint("DistanceX", 0, 2, 5, 2, Q("0.45 in")))
sketch10.addConstraint(Sketcher.Constraint("DistanceY", 0, 1, 0, 2, Q("0.2875 in")))
sketch10.addConstraint(Sketcher.Constraint("DistanceX", -1, 1, 0, 2, Q("0.8125 in")))
sketch10.addConstraint(Sketcher.Constraint("DistanceX", 7, 2, 7, 1, 20.611681))
sketch10.addConstraint(Sketcher.Constraint("DistanceY", 6, 2, 6, 1, 4.58477))
sketch10.addConstraint(Sketcher.Constraint("DistanceY", 8, 2, 8, 1, 11.181831))
sketch10.addConstraint(Sketcher.Constraint("Distance", 4, 10.659861))
pad10 = body.newObject("PartDesign::Pad", "Pad009")
pad10.Profile = sketch10
pad10.Length = Q("1.125 in")

sketch11 = body.newObject("Sketcher::SketchObject", "Sketch010")
sketch11.AttachmentSupport = (doc.getObject("XY_Plane"), [""])
sketch11.MapMode = "FlatFace"
sketch11.AttachmentOffset = App.Placement(Vector(0, 0, 2.25 * 25.4), App.Rotation())
sketch11.addGeometry(Part.LineSegment(Vector(34.3, -11.2, 0), Vector(44, -11.2, 0)), False)
sketch11.addGeometry(Part.LineSegment(Vector(44, -11.2, 0), Vector(43.1, -0.6, 0)), False)
sketch11.addGeometry(Part.LineSegment(Vector(43.1, -0.6, 0), Vector(32.1, 4.6, 0)), False)
sketch11.addGeometry(Part.LineSegment(Vector(32.1, 4.6, 0), Vector(32.1, 0, 0)), False)
sketch11.addGeometry(Part.LineSegment(Vector(32.1, 0, 0), Vector(11.5, 0, 0)), False)
sketch11.addGeometry(Part.LineSegment(Vector(11.5, 0, 0), Vector(11.5, -11.2, 0)), False)
sketch11.addGeometry(Part.LineSegment(Vector(11.5, -11.2, 0), Vector(21.6, -11.2, 0)), False)
sketch11.addGeometry(Part.ArcOfCircle(Part.Circle(Vector(27.9, -11.2, 0), Vector(0, 0, 1), 6.3), math.radians(0), math.radians(180)), False)
sketch11.addConstraint(Sketcher.Constraint("Coincident", 0, 2, 1, 1))
sketch11.addConstraint(Sketcher.Constraint("Coincident", 1, 2, 2, 1))
sketch11.addConstraint(Sketcher.Constraint("Coincident", 2, 2, 3, 1))
sketch11.addConstraint(Sketcher.Constraint("Coincident", 3, 2, 4, 1))
sketch11.addConstraint(Sketcher.Constraint("Coincident", 4, 2, 5, 1))
sketch11.addConstraint(Sketcher.Constraint("Coincident", 5, 2, 6, 1))
sketch11.addConstraint(Sketcher.Constraint("Coincident", 6, 2, 7, 2))
sketch11.addConstraint(Sketcher.Constraint("Coincident", 7, 1, 0, 1))
sketch11.addConstraint(Sketcher.Constraint("Horizontal", 0))
sketch11.addConstraint(Sketcher.Constraint("Vertical", 3))
sketch11.addConstraint(Sketcher.Constraint("Horizontal", 4))
sketch11.addConstraint(Sketcher.Constraint("Vertical", 5))
sketch11.addConstraint(Sketcher.Constraint("Horizontal", 6))
sketch11.addConstraint(Sketcher.Constraint("PointOnObject", 3, 2, -1))
sketch11.addConstraint(Sketcher.Constraint("Horizontal", 7, 3, 0, 2))
sketch11.addConstraint(Sketcher.Constraint("Horizontal", 0, 2, 5, 2))
sketch11.addConstraint(Sketcher.Constraint("Radius", 7, Q("0.25 in")))
sketch11.addConstraint(Sketcher.Constraint("Angle", 1, Q("95 deg")))
sketch11.addConstraint(Sketcher.Constraint("Angle", 2, Q("155 deg")))
sketch11.addConstraint(Sketcher.Constraint("DistanceX", -1, 1, 7, 3, Q("1.1 in")))
sketch11.addConstraint(Sketcher.Constraint("DistanceX", -1, 1, 2, 2, Q("1.2625 in")))
sketch11.addConstraint(Sketcher.Constraint("DistanceX", 4, 2, 4, 1, 20.611681))
sketch11.addConstraint(Sketcher.Constraint("DistanceY", 3, 2, 3, 1, 4.58477))
sketch11.addConstraint(Sketcher.Constraint("DistanceY", 5, 2, 5, 1, 11.181831))
sketch11.addConstraint(Sketcher.Constraint("Distance", 1, 10.659861))
pad11 = body.newObject("PartDesign::Pad", "Pad010")
pad11.Profile = sketch11
pad11.Length = Q("0.25 in")

sketch12 = body.newObject("Sketcher::SketchObject", "Sketch011")
sketch12.AttachmentSupport = (doc.getObject("XZ_Plane"), [""])
sketch12.MapMode = "FlatFace"
sketch12.addGeometry(Part.Circle(Vector(0, 12.7, 0), Vector(0, 0, 1), 2.5), False)
sketch12.addGeometry(Part.Circle(Vector(0, -38.1, 0), Vector(0, 0, 1), 2.5), False)
add_polygon(sketch12, [(-32.1, 63.5), (-32.1, -63.5), (-12.7, -63.5), (-12.7, 63.5)])
sketch12.addConstraint(Sketcher.Constraint("Vertical", 2))
sketch12.addConstraint(Sketcher.Constraint("Horizontal", 3))
sketch12.addConstraint(Sketcher.Constraint("Vertical", 4))
sketch12.addConstraint(Sketcher.Constraint("Horizontal", 5))
sketch12.addConstraint(Sketcher.Constraint("Equal", 0, 1))
sketch12.addConstraint(Sketcher.Constraint("PointOnObject", 0, 3, -2))
sketch12.addConstraint(Sketcher.Constraint("PointOnObject", 1, 3, -2))
sketch12.addConstraint(Sketcher.Constraint("Diameter", 0, Q("0.2 in")))
sketch12.addConstraint(Sketcher.Constraint("DistanceY", 2, 2, 2, 1, Q("5 in")))
sketch12.addConstraint(Sketcher.Constraint("DistanceY", 1, 3, 0, 3, Q("2 in")))
sketch12.addConstraint(Sketcher.Constraint("DistanceY", 2, 2, 1, 3, Q("1 in")))
sketch12.addConstraint(Sketcher.Constraint("DistanceY", -1, 1, 0, 3, Q("0.5 in")))
sketch12.addConstraint(Sketcher.Constraint("DistanceX", 3, 2, -1, 1, Q("0.5 in")))
sketch12.addConstraint(Sketcher.Constraint("DistanceX", 3, 1, 3, 2, Q("0.7625 in")))
pocket1 = body.newObject("PartDesign::Pocket", "Pocket")
pocket1.Profile = sketch12
pocket1.Type = "ThroughAll"

sketch13 = body.newObject("Sketcher::SketchObject", "Sketch012")
sketch13.AttachmentSupport = (doc.getObject("XZ_Plane"), [""])
sketch13.MapMode = "FlatFace"
sketch13.AttachmentOffset = App.Placement(Vector(0, 0, 11.181831), App.Rotation())
add_polygon(sketch13, [(15.6, -47.8), (15.6, -52.9), (17.5, -52.9), (17.5, -47.8)])
add_polygon(sketch13, [(15.6, 28.6), (15.6, 23.5), (17.5, 23.5), (17.5, 28.6)])
sketch13.addGeometry(Part.LineSegment(Vector(27.9, 28.6, 0), Vector(27.9, -52.9, 0)), True)
sketch13.addConstraint(Sketcher.Constraint("Vertical", 0))
sketch13.addConstraint(Sketcher.Constraint("Horizontal", 1))
sketch13.addConstraint(Sketcher.Constraint("Vertical", 2))
sketch13.addConstraint(Sketcher.Constraint("Horizontal", 3))
sketch13.addConstraint(Sketcher.Constraint("Vertical", 4))
sketch13.addConstraint(Sketcher.Constraint("Horizontal", 5))
sketch13.addConstraint(Sketcher.Constraint("Vertical", 6))
sketch13.addConstraint(Sketcher.Constraint("Horizontal", 7))
sketch13.addConstraint(Sketcher.Constraint("Vertical", 8))
sketch13.addConstraint(Sketcher.Constraint("Horizontal", 7, 2, 8, 1))
sketch13.addConstraint(Sketcher.Constraint("Horizontal", 1, 2, 8, 2))
sketch13.addConstraint(Sketcher.Constraint("Vertical", 3, 2, 4, 2))
sketch13.addConstraint(Sketcher.Constraint("Vertical", 2, 2, 5, 2))
sketch13.addConstraint(Sketcher.Constraint("Equal", 2, 4))
sketch13.addConstraint(Sketcher.Constraint("DistanceY", 0, 2, 0, 1, Q("0.2 in")))
sketch13.addConstraint(Sketcher.Constraint("DistanceX", -1, 1, 8, 1, Q("1.1 in")))
sketch13.addConstraint(Sketcher.Constraint("DistanceX", 1, 1, 1, 2, Q("0.075 in")))
sketch13.addConstraint(Sketcher.Constraint("DistanceY", -1, 1, 4, 2, Q("0.925 in")))
sketch13.addConstraint(Sketcher.Constraint("DistanceY", 8, 2, 8, 1, 81.43875))
sketch13.addConstraint(Sketcher.Constraint("DistanceX", -1, 1, 0, 2, 15.57041))
groove = body.newObject("PartDesign::Groove", "Groove")
groove.Profile = sketch13
groove.ReferenceAxis = (sketch13, ["Axis0"])
groove.Angle = 360
doc.recompute()

fillet = body.newObject("PartDesign::Fillet", "Fillet")
fillet.Base = (groove, edges_at(groove, [
    (11.456, 0, 0),
    (43.106, -0.563, 4.445),
    (44.035, -11.182, 0),
    (32.068, 4.585, 12.224),
    (11.456, -11.182, 0),
    (-12.7, 0, 0),
]))
fillet.Radius = Q("0.1 in")

doc.recompute()
